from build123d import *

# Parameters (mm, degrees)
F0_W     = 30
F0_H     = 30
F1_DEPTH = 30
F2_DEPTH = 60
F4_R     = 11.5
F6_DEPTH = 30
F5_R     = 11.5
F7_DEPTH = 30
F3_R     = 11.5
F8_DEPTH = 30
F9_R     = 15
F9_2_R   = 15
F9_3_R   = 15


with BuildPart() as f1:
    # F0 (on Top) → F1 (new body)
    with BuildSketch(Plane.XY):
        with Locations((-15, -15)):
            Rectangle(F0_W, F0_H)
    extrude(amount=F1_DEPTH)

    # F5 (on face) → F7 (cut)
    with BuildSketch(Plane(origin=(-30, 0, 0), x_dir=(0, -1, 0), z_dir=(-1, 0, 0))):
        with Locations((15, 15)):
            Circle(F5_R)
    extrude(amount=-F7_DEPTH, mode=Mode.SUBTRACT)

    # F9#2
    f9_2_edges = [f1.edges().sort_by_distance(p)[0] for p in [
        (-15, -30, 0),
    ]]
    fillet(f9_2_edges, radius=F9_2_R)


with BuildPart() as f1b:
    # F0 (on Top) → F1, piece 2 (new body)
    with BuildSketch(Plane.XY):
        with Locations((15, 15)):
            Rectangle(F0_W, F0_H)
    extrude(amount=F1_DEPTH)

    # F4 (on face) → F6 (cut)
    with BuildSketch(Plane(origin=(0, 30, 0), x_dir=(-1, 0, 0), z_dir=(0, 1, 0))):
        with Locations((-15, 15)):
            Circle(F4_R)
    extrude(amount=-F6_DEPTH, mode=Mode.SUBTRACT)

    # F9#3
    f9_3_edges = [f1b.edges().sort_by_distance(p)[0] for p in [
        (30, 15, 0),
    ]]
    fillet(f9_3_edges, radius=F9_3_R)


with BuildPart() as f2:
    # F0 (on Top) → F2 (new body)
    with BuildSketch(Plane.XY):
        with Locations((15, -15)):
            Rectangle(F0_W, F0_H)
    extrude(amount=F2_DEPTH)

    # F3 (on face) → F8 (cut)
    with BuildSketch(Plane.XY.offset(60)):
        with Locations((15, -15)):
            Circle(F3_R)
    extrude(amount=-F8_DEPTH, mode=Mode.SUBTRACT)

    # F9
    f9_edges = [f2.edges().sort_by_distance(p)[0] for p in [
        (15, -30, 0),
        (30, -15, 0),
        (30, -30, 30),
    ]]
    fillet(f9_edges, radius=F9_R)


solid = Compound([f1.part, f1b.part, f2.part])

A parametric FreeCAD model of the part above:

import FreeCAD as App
import Part
import Sketcher
from FreeCAD import Vector


def edges_at(feature, points):
    """Names of the edges that pass closest to the given points."""
    edges = feature.Shape.Edges
    near = lambda p: min(range(len(edges)), key=lambda i: edges[i].distToShape(Part.Vertex(*p))[0])
    return sorted({f"Edge{near(p) + 1}" for p in points})

doc = App.newDocument("Part")
body = doc.addObject("PartDesign::Body", "Body")

sketch1 = body.newObject("Sketcher::SketchObject", "Sketch")
sketch1.AttachmentSupport = (doc.getObject("XY_Plane"), [""])
sketch1.MapMode = "FlatFace"
sketch1.addGeometry([
    Part.LineSegment(Vector(-30, 0, 0), Vector(-30, -30, 0)),
    Part.LineSegment(Vector(-30, -30, 0), Vector(0, -30, 0)),
    Part.LineSegment(Vector(0, -30, 0), Vector(0, 0, 0)),
    Part.LineSegment(Vector(0, 0, 0), Vector(-30, 0, 0)),
], False)
sketch1.addConstraint([
    Sketcher.Constraint("Coincident", 0, 2, 1, 1),
    Sketcher.Constraint("Coincident", 1, 2, 2, 1),
    Sketcher.Constraint("Coincident", 2, 2, 3, 1),
    Sketcher.Constraint("Coincident", 3, 2, 0, 1),
    Sketcher.Constraint("Vertical", 0),
    Sketcher.Constraint("Horizontal", 1),
    Sketcher.Constraint("Vertical", 2),
    Sketcher.Constraint("Horizontal", 3),
    Sketcher.Constraint("Coincident", 2, 2, -1, 1),
    Sketcher.Constraint("Equal", 3, 0),
    Sketcher.Constraint("DistanceX", 1, 1, 1, 2, 30.0),
])
pad1 = body.newObject("PartDesign::Pad", "Pad")
pad1.Profile = sketch1
pad1.Length = 30

sketch2 = body.newObject("Sketcher::SketchObject", "Sketch001")
sketch2.AttachmentSupport = (doc.getObject("YZ_Plane"), [""])
sketch2.MapMode = "FlatFace"
sketch2.AttachmentOffset = App.Placement(Vector(0, 0, -30), App.Rotation())
sketch2.addGeometry(Part.Circle(Vector(-15, 15, 0), Vector(0, 0, 1), 12), False)
sketch2.addConstraint([
    Sketcher.Constraint("Diameter", 0, 23.0),
    Sketcher.Constraint("DistanceX", 0, 3, -1, 1, 15.0),
    Sketcher.Constraint("DistanceY", -1, 1, 0, 3, 15.0),
])
pocket1 = body.newObject("PartDesign::Pocket", "Pocket")
pocket1.Profile = sketch2
pocket1.Length = 30
pocket1.Reversed = True
doc.recompute()

fillet = body.newObject("PartDesign::Fillet", "Fillet")
fillet.Base = (pocket1, edges_at(pocket1, [(-15, -30, 0)]))
fillet.Radius = 15
body2 = doc.addObject("PartDesign::Body", "Body001")

sketch3 = body2.newObject("Sketcher::SketchObject", "Sketch002")
sketch3.AttachmentSupport = (doc.getObject("XY_Plane001"), [""])
sketch3.MapMode = "FlatFace"
sketch3.addGeometry([
    Part.LineSegment(Vector(0, 30, 0), Vector(0, 0, 0)),
    Part.LineSegment(Vector(0, 0, 0), Vector(30, 0, 0)),
    Part.LineSegment(Vector(30, 0, 0), Vector(30, 30, 0)),
    Part.LineSegment(Vector(30, 30, 0), Vector(0, 30, 0)),
], False)
sketch3.addConstraint([
    Sketcher.Constraint("Coincident", 0, 2, 1, 1),
    Sketcher.Constraint("Coincident", 1, 2, 2, 1),
    Sketcher.Constraint("Coincident", 2, 2, 3, 1),
    Sketcher.Constraint("Coincident", 3, 2, 0, 1),
    Sketcher.Constraint("Vertical", 0),
    Sketcher.Constraint("Horizontal", 1),
    Sketcher.Constraint("Vertical", 2),
    Sketcher.Constraint("Horizontal", 3),
    Sketcher.Constraint("Coincident", 0, 2, -1, 1),
    Sketcher.Constraint("Equal", 3, 0),
    Sketcher.Constraint("DistanceX", 1, 1, 1, 2, 30.0),
])
pad2 = body2.newObject("PartDesign::Pad", "Pad001")
pad2.Profile = sketch3
pad2.Length = 30

sketch4 = body2.newObject("Sketcher::SketchObject", "Sketch003")
sketch4.AttachmentSupport = (doc.getObject("XZ_Plane001"), [""])
sketch4.MapMode = "FlatFace"
sketch4.AttachmentOffset = App.Placement(Vector(0, 0, -30), App.Rotation())
sketch4.addGeometry(Part.Circle(Vector(15, 15, 0), Vector(0, 0, 1), 12), False)
sketch4.addConstraint([
    Sketcher.Constraint("Diameter", 0, 23.0),
    Sketcher.Constraint("DistanceX", -1, 1, 0, 3, 15.0),
    Sketcher.Constraint("DistanceY", -1, 1, 0, 3, 15.0),
])
pocket2 = body2.newObject("PartDesign::Pocket", "Pocket001")
pocket2.Profile = sketch4
pocket2.Length = 30
pocket2.Reversed = True
doc.recompute()

fillet2 = body2.newObject("PartDesign::Fillet", "Fillet001")
fillet2.Base = (pocket2, edges_at(pocket2, [(30, 15, 0)]))
fillet2.Radius = 15
body3 = doc.addObject("PartDesign::Body", "Body002")

sketch5 = body3.newObject("Sketcher::SketchObject", "Sketch004")
sketch5.AttachmentSupport = (doc.getObject("XY_Plane002"), [""])
sketch5.MapMode = "FlatFace"
sketch5.addGeometry([
    Part.LineSegment(Vector(0, 0, 0), Vector(0, -30, 0)),
    Part.LineSegment(Vector(0, -30, 0), Vector(30, -30, 0)),
    Part.LineSegment(Vector(30, -30, 0), Vector(30, 0, 0)),
    Part.LineSegment(Vector(30, 0, 0), Vector(0, 0, 0)),
], False)
sketch5.addConstraint([
    Sketcher.Constraint("Coincident", 0, 2, 1, 1),
    Sketcher.Constraint("Coincident", 1, 2, 2, 1),
    Sketcher.Constraint("Coincident", 2, 2, 3, 1),
    Sketcher.Constraint("Coincident", 3, 2, 0, 1),
    Sketcher.Constraint("Vertical", 0),
    Sketcher.Constraint("Horizontal", 1),
    Sketcher.Constraint("Vertical", 2),
    Sketcher.Constraint("Horizontal", 3),
    Sketcher.Constraint("Coincident", 3, 2, -1, 1),
    Sketcher.Constraint("Equal", 3, 0),
    Sketcher.Constraint("DistanceX", 1, 1, 1, 2, 30.0),
])
pad3 = body3.newObject("PartDesign::Pad", "Pad002")
pad3.Profile = sketch5
pad3.Length = 60

sketch6 = body3.newObject("Sketcher::SketchObject", "Sketch005")
sketch6.AttachmentSupport = (doc.getObject("XY_Plane002"), [""])
sketch6.MapMode = "FlatFace"
sketch6.AttachmentOffset = App.Placement(Vector(0, 0, 60), App.Rotation())
sketch6.addGeometry(Part.Circle(Vector(15, -15, 0), Vector(0, 0, 1), 12), False)
sketch6.addConstraint([
    Sketcher.Constraint("Diameter", 0, 23.0),
    Sketcher.Constraint("DistanceX", -1, 1, 0, 3, 15.0),
    Sketcher.Constraint("DistanceY", 0, 3, -1, 1, 15.0),
])
pocket3 = body3.newObject("PartDesign::Pocket", "Pocket002")
pocket3.Profile = sketch6
pocket3.Length = 30
doc.recompute()

fillet3 = body3.newObject("PartDesign::Fillet", "Fillet002")
fillet3.Base = (pocket3, edges_at(pocket3, [(15, -30, 0), (30, -15, 0), (30, -30, 30)]))
fillet3.Radius = 15

doc.recompute()
